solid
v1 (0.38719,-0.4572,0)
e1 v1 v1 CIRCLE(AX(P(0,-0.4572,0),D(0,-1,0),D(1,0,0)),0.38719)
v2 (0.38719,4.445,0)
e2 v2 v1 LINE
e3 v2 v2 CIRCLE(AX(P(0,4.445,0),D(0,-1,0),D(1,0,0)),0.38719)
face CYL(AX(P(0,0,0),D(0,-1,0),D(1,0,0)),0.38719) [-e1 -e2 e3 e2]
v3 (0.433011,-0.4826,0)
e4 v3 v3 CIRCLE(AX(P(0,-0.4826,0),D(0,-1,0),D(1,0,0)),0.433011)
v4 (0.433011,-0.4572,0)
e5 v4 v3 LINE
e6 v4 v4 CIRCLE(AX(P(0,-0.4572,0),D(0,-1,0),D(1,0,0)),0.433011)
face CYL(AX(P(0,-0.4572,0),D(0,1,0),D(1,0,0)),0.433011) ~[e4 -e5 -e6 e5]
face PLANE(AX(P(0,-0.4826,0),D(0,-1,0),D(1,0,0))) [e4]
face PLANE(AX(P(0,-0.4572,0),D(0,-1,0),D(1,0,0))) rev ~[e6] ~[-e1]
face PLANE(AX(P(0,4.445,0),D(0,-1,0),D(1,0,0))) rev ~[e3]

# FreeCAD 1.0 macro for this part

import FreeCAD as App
import Part
import Sketcher

V = App.Vector

doc = App.newDocument("Part")
params = doc.addObject("Spreadsheet::Sheet", "Params")
for row, (alias, value) in enumerate([
    ("pad1_length", "0.018 in"),
    ("pad1_length2", "0.175 in"),
    ("pad2_length", "0.001 in"),
], start=1):
    params.set(f"A{row}", alias)
    params.set(f"B{row}", "=" + value)
    params.setAlias(f"B{row}", alias)

body = doc.addObject("PartDesign::Body", "Body")

sketch1 = body.newObject("Sketcher::SketchObject", "Sketch")
sketch1.AttachmentSupport = (doc.getObject("XZ_Plane"), [""])
sketch1.MapMode = "FlatFace"
sketch1.addGeometry(Part.Circle(V(0, 0, 0), V(0, 0, 1), 0.39), False)
sketch1.addConstraint([
    Sketcher.Constraint("Coincident", 0, 3, -1, 1),
    Sketcher.Constraint("Diameter", 0, 0.77438),
])
pad1 = body.newObject("PartDesign::Pad", "Pad")
pad1.Profile = sketch1
pad1.Type = "TwoLengths"
pad1.setExpression("Length", "Params.pad1_length")
pad1.setExpression("Length2", "Params.pad1_length2")

sketch2 = body.newObject("Sketcher::SketchObject", "Sketch001")
sketch2.AttachmentSupport = (doc.getObject("XZ_Plane"), [""])
sketch2.MapMode = "FlatFace"
sketch2.AttachmentOffset = App.Placement(V(0, 0, 0.018 * 25.4), App.Rotation())
sketch2.addGeometry(Part.Circle(V(0, 0, 0), V(0, 0, 1), 0.43), False)
sketch2.addConstraint([
    Sketcher.Constraint("Coincident", 0, 3, -1, 1),
    Sketcher.Constraint("Diameter", 0, 0.866022),
])
pad2 = body.newObject("PartDesign::Pad", "Pad001")
pad2.Profile = sketch2
pad2.setExpression("Length", "Params.pad2_length")

doc.recompute()
